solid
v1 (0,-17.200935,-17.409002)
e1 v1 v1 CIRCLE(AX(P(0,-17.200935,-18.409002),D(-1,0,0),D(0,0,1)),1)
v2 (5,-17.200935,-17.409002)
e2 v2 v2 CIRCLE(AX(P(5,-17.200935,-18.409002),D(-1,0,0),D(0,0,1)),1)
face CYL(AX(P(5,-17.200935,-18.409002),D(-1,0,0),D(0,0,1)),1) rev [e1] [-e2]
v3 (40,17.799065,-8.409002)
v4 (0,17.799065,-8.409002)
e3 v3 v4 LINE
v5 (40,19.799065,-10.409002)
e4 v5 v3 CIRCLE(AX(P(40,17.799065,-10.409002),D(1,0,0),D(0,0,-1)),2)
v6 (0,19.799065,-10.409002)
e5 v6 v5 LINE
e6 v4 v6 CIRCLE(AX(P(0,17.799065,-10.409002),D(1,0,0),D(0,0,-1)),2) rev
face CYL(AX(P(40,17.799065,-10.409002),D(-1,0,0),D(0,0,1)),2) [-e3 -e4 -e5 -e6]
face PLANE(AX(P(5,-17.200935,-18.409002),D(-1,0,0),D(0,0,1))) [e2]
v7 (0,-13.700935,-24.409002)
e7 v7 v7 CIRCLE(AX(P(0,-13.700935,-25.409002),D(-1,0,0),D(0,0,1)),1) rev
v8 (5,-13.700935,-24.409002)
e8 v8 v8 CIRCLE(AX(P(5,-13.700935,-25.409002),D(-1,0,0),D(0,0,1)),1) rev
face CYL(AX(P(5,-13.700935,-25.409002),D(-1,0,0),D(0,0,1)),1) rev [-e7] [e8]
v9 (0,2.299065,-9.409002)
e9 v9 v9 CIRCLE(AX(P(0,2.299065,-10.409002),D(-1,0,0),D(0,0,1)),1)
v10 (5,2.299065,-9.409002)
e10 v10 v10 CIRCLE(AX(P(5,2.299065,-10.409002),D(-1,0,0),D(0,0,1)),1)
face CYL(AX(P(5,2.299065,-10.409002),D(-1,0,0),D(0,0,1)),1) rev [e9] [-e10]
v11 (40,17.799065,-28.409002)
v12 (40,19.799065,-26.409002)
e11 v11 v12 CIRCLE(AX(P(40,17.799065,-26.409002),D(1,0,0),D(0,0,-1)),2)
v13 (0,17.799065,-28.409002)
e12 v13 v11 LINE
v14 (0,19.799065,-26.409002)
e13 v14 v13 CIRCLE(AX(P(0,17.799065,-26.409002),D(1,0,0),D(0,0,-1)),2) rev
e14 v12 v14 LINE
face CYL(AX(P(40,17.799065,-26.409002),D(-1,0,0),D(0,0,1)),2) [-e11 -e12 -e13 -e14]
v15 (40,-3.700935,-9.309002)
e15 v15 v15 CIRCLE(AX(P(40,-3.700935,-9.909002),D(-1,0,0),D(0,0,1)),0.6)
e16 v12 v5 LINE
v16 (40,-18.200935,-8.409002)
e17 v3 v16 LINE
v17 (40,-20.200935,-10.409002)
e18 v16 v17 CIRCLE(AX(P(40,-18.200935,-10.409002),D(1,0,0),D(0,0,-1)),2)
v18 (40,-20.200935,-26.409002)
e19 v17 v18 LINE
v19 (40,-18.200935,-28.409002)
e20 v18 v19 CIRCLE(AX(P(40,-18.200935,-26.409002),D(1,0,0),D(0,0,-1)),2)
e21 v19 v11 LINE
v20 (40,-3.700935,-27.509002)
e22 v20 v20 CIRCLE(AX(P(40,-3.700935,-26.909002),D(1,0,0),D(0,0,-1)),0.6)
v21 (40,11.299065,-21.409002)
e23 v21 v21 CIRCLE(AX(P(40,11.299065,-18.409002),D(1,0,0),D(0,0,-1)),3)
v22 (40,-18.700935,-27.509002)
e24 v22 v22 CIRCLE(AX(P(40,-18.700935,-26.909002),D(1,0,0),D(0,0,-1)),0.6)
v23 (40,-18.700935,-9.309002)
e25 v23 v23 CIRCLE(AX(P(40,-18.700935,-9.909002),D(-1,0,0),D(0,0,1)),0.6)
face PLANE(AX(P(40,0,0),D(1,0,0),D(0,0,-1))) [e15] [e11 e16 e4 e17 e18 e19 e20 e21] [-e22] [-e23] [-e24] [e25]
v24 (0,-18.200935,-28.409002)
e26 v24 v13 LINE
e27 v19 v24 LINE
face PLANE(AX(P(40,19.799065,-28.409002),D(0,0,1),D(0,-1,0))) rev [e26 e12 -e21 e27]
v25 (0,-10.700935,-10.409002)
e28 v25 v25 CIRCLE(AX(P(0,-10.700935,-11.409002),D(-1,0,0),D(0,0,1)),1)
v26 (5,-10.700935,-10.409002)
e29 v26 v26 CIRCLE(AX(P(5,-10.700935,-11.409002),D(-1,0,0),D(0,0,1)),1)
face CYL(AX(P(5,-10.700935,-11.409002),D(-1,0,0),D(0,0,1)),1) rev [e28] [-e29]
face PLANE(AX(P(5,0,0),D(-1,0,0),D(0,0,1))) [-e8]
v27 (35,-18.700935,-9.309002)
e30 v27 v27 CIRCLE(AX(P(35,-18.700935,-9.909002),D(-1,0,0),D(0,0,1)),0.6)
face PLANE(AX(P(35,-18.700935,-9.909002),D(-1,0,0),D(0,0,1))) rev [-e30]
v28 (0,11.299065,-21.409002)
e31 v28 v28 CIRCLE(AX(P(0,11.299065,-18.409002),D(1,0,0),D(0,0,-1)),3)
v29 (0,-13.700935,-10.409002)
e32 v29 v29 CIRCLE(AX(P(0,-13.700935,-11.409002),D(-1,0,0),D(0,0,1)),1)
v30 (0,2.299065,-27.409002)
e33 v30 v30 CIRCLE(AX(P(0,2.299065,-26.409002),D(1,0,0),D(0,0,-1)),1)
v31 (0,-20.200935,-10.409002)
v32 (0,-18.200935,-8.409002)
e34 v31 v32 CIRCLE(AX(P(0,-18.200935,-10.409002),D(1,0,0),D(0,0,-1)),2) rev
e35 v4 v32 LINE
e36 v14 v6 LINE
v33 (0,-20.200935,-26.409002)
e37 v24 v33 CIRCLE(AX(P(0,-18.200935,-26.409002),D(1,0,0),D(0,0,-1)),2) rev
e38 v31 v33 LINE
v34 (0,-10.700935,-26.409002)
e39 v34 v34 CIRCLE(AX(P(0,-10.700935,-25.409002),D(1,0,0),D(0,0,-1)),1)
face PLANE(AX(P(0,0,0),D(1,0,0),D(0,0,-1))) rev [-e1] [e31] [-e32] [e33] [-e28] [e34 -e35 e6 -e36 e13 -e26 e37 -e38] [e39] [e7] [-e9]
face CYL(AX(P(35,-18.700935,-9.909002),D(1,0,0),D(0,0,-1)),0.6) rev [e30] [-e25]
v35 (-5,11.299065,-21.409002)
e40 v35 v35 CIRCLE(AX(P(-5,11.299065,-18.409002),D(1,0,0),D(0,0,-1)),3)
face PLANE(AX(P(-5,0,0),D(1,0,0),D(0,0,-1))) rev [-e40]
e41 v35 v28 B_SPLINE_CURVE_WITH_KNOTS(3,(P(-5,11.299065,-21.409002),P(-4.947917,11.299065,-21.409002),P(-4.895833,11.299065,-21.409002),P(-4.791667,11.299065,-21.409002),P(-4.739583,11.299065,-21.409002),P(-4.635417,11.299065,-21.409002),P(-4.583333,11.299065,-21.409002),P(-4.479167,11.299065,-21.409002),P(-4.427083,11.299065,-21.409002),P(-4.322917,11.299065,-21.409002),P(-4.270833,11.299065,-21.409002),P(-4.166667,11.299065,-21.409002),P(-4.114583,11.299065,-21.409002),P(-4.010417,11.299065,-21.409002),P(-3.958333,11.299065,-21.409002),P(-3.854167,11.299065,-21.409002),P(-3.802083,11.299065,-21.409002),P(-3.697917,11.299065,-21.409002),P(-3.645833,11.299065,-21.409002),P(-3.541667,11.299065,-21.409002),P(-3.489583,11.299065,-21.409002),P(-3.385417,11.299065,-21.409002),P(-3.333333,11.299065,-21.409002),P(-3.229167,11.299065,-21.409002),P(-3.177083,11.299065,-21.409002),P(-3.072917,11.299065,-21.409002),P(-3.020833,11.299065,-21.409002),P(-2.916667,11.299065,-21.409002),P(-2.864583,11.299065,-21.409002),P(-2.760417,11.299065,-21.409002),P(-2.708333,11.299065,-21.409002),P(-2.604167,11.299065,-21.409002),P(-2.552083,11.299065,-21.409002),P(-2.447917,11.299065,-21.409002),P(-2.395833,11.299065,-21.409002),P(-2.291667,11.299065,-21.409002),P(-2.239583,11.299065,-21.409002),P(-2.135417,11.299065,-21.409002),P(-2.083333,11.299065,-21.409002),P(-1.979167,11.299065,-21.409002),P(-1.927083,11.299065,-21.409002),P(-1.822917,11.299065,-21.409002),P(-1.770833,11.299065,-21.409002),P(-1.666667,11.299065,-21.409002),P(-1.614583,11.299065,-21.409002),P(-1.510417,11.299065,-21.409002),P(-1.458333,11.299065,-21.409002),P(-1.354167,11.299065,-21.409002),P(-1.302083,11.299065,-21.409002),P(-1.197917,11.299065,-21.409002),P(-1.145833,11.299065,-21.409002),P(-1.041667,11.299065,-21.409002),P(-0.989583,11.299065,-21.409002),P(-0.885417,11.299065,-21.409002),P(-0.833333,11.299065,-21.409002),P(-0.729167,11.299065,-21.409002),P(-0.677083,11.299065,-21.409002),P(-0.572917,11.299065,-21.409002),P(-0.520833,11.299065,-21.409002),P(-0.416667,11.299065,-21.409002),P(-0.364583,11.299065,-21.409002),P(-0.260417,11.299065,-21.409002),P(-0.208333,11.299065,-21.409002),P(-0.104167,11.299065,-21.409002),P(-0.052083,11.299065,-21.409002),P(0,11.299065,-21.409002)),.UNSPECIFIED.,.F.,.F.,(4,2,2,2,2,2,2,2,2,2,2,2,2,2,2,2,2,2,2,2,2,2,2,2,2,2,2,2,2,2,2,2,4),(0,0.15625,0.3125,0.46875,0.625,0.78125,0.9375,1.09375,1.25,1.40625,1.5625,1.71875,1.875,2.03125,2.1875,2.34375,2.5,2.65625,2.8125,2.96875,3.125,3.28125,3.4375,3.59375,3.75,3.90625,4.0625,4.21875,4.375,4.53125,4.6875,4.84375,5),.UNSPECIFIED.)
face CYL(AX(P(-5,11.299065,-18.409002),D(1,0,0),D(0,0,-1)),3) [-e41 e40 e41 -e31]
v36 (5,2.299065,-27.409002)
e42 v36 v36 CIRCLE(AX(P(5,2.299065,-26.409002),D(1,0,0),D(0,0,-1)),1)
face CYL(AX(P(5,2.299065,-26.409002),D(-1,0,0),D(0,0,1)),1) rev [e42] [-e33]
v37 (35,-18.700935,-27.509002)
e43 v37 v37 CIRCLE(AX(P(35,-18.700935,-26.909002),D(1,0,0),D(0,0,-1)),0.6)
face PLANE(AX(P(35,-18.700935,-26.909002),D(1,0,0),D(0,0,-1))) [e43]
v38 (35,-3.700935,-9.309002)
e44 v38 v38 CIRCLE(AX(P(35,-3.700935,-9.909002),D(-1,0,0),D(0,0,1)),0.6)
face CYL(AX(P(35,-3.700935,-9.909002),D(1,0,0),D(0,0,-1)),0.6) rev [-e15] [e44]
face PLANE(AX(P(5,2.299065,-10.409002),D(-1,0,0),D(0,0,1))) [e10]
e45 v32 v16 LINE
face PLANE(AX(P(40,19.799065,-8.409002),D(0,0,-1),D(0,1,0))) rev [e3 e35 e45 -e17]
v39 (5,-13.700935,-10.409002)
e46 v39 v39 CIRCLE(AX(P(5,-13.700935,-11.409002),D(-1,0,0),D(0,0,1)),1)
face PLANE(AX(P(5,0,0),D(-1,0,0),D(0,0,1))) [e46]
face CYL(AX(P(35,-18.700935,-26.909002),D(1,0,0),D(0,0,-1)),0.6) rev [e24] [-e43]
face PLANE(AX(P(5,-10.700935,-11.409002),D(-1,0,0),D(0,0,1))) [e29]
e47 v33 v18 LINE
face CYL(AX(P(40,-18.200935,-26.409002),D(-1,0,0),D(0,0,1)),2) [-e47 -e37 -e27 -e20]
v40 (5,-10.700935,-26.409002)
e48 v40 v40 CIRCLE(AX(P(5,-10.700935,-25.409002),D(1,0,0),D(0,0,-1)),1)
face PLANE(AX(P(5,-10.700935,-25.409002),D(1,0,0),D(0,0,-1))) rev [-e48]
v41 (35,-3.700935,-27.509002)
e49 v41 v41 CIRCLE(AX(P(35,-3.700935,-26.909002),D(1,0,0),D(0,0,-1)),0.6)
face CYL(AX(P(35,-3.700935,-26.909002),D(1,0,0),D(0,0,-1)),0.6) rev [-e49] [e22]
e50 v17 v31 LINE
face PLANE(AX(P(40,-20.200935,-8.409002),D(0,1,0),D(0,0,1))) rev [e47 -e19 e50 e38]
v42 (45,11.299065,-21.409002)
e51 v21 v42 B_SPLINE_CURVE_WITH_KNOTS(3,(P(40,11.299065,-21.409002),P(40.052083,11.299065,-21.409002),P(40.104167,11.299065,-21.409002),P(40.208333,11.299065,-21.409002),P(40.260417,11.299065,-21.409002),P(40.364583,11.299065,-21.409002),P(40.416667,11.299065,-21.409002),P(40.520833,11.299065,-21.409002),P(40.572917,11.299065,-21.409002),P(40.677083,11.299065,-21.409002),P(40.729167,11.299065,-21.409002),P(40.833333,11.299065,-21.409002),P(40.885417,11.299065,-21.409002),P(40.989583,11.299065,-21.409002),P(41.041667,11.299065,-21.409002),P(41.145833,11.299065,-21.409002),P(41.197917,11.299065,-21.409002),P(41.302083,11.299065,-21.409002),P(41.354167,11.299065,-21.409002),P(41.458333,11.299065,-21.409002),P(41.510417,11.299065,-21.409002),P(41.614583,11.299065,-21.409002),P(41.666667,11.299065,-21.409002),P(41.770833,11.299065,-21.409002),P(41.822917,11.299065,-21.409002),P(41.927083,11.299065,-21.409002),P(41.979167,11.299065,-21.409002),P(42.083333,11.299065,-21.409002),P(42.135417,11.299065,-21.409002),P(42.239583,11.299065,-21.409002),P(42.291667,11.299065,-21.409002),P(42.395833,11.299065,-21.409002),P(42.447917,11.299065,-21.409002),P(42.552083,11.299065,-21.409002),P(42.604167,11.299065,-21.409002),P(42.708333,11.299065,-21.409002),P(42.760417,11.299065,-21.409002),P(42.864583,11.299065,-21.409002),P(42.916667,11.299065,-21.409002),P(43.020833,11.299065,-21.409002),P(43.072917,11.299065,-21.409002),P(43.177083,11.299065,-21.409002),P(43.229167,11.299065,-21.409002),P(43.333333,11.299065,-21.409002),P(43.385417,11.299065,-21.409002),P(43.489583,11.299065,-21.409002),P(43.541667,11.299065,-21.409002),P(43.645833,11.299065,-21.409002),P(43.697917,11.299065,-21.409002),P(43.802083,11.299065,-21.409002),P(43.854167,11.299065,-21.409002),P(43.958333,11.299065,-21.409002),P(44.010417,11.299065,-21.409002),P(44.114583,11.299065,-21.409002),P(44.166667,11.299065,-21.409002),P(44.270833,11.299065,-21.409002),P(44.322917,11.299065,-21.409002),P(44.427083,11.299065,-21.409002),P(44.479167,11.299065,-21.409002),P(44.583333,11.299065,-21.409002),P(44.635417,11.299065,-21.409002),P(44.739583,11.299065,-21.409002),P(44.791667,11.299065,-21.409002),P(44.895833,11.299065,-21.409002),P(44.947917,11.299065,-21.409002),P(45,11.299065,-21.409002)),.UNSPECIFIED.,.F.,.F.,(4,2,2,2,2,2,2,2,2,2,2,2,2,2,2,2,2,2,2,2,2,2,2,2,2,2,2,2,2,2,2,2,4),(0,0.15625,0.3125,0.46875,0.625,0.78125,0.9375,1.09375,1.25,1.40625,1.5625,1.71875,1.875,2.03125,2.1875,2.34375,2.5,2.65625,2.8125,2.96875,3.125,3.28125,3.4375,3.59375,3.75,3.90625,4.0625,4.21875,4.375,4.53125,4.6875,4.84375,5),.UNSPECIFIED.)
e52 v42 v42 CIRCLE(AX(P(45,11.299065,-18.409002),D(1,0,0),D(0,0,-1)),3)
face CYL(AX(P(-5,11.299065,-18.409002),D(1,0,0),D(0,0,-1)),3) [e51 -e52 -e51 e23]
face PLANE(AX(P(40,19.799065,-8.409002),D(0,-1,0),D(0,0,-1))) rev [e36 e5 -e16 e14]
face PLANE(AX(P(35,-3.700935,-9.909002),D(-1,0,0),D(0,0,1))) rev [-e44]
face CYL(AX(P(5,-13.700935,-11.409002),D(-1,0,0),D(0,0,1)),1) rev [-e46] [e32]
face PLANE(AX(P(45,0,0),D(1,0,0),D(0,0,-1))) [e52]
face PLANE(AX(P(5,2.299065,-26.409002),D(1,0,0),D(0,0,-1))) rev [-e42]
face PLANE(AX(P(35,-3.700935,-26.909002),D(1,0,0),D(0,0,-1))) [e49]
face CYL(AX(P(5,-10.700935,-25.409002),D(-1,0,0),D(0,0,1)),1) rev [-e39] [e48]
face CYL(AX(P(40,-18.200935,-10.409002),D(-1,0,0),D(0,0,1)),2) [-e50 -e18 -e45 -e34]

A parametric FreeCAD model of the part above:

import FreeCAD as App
import Part
import Sketcher

V = App.Vector
Q = App.Units.Quantity


def edges_at(feature, points):
    """Names of the edges that pass closest to the given points."""
    edges = feature.Shape.Edges
    near = lambda p: min(range(len(edges)), key=lambda i: edges[i].distToShape(Part.Vertex(*p))[0])
    return sorted({f"Edge{near(p) + 1}" for p in points})

doc = App.newDocument("Part")
body = doc.addObject("PartDesign::Body", "Body")

sketch1 = body.newObject("Sketcher::SketchObject", "Sketch")
sketch1.AttachmentSupport = (doc.getObject("YZ_Plane"), [""])
sketch1.MapMode = "FlatFace"
sketch1.addGeometry([
    Part.LineSegment(V(20, -8, 0), V(-20, -8, 0)),
    Part.LineSegment(V(-20, -8, 0), V(-20, -28, 0)),
    Part.LineSegment(V(-20, -28, 0), V(20, -28, 0)),
    Part.LineSegment(V(20, -28, 0), V(20, -8, 0)),
], False)
sketch1.addConstraint([
    Sketcher.Constraint("Coincident", 0, 2, 1, 1),
    Sketcher.Constraint("Coincident", 1, 2, 2, 1),
    Sketcher.Constraint("Coincident", 2, 2, 3, 1),
    Sketcher.Constraint("Coincident", 3, 2, 0, 1),
    Sketcher.Constraint("Horizontal", 0),
    Sketcher.Constraint("Vertical", 1),
    Sketcher.Constraint("Horizontal", 2),
    Sketcher.Constraint("Vertical", 3),
    Sketcher.Constraint("DistanceX", 0, 2, 0, 1, Q("40 mm")),
    Sketcher.Constraint("DistanceY", 1, 2, 1, 1, Q("20 mm")),
    Sketcher.Constraint("DistanceY", 0, 2, -1, 1, Q("8.409002 mm")),
    Sketcher.Constraint("DistanceX", 0, 2, -1, 1, Q("20.200935 mm")),
])
pad1 = body.newObject("PartDesign::Pad", "Pad")
pad1.Profile = sketch1
pad1.Length = 40

sketch2 = body.newObject("Sketcher::SketchObject", "Sketch001")
sketch2.AttachmentSupport = (doc.getObject("YZ_Plane"), [""])
sketch2.MapMode = "FlatFace"
sketch2.AttachmentOffset = App.Placement(V(0, 0, 40), App.Rotation())
sketch2.addGeometry([
    Part.Circle(V(-18.7, -26.9, 0), V(0, 0, 1), 0.6),
    Part.Circle(V(-3.7, -26.9, 0), V(0, 0, 1), 0.6),
    Part.Circle(V(-3.7, -9.9, 0), V(0, 0, 1), 0.6),
    Part.Circle(V(-18.7, -9.9, 0), V(0, 0, 1), 0.6),
], False)
sketch2.addConstraint([
    Sketcher.Constraint("Equal", 0, 1),
    Sketcher.Constraint("Equal", 1, 2),
    Sketcher.Constraint("Equal", 2, 3),
    Sketcher.Constraint("Horizontal", 0, 3, 1, 3),
    Sketcher.Constraint("Horizontal", 2, 3, 3, 3),
    Sketcher.Constraint("Vertical", 1, 3, 2, 3),
    Sketcher.Constraint("Vertical", 0, 3, 3, 3),
    Sketcher.Constraint("Diameter", 0, Q("1.2 mm")),
    Sketcher.Constraint("DistanceX", 0, 3, 1, 3, Q("15 mm")),
    Sketcher.Constraint("DistanceY", 1, 3, 2, 3, Q("17 mm")),
    Sketcher.Constraint("DistanceY", 0, 3, -1, 1, Q("26.909002 mm")),
    Sketcher.Constraint("DistanceX", 0, 3, -1, 1, Q("18.700935 mm")),
])
pocket1 = body.newObject("PartDesign::Pocket", "Pocket")
pocket1.Profile = sketch2
pocket1.Length = 5

sketch3 = body.newObject("Sketcher::SketchObject", "Sketch002")
sketch3.AttachmentSupport = (doc.getObject("YZ_Plane"), [""])
sketch3.MapMode = "FlatFace"
sketch3.AttachmentOffset = App.Placement(V(0, 0, 40), App.Rotation())
sketch3.addGeometry(Part.Circle(V(11.3, -18.4, 0), V(0, 0, 1), 3), False)
sketch3.addConstraint([
    Sketcher.Constraint("Diameter", 0, Q("6 mm")),
    Sketcher.Constraint("DistanceY", 0, 3, -1, 1, Q("18.409002 mm")),
    Sketcher.Constraint("DistanceX", -1, 1, 0, 3, Q("11.299065 mm")),
])
pad2 = body.newObject("PartDesign::Pad", "Pad001")
pad2.Profile = sketch3
pad2.Type = "TwoLengths"
pad2.Length = 5
pad2.Length2 = 45

sketch4 = body.newObject("Sketcher::SketchObject", "Sketch003")
sketch4.AttachmentSupport = (doc.getObject("YZ_Plane"), [""])
sketch4.MapMode = "FlatFace"
sketch4.addGeometry([
    Part.Circle(V(-13.7, -11.4, 0), V(0, 0, 1), 1),
    Part.Circle(V(-13.7, -25.4, 0), V(0, 0, 1), 1),
    Part.Circle(V(2.3, -26.4, 0), V(0, 0, 1), 1),
    Part.Circle(V(2.3, -10.4, 0), V(0, 0, 1), 1),
    Part.Circle(V(-10.7, -11.4, 0), V(0, 0, 1), 1),
    Part.Circle(V(-10.7, -25.4, 0), V(0, 0, 1), 1),
    Part.Circle(V(-17.2, -18.4, 0), V(0, 0, 1), 1),
], False)
sketch4.addConstraint([
    Sketcher.Constraint("Equal", 0, 1),
    Sketcher.Constraint("Equal", 1, 2),
    Sketcher.Constraint("Equal", 2, 3),
    Sketcher.Constraint("Equal", 3, 4),
    Sketcher.Constraint("Equal", 4, 5),
    Sketcher.Constraint("Equal", 5, 6),
    Sketcher.Constraint("Horizontal", 0, 3, 4, 3),
    Sketcher.Constraint("Horizontal", 1, 3, 5, 3),
    Sketcher.Constraint("Vertical", 0, 3, 1, 3),
    Sketcher.Constraint("Vertical", 2, 3, 3, 3),
    Sketcher.Constraint("Vertical", 4, 3, 5, 3),
    Sketcher.Constraint("Diameter", 0, Q("2 mm")),
    Sketcher.Constraint("DistanceY", 1, 3, 0, 3, Q("14 mm")),
    Sketcher.Constraint("DistanceX", 1, 3, 2, 3, Q("16 mm")),
    Sketcher.Constraint("DistanceY", 2, 3, 1, 3, Q("1 mm")),
    Sketcher.Constraint("DistanceY", 2, 3, 3, 3, Q("16 mm")),
    Sketcher.Constraint("DistanceX", 0, 3, 4, 3, Q("3 mm")),
    Sketcher.Constraint("DistanceY", 6, 3, 0, 3, Q("7 mm")),
    Sketcher.Constraint("DistanceX", 6, 3, 0, 3, Q("3.5 mm")),
    Sketcher.Constraint("DistanceY", 0, 3, -1, 1, Q("11.409002 mm")),
    Sketcher.Constraint("DistanceX", 0, 3, -1, 1, Q("13.700935 mm")),
])
pocket2 = body.newObject("PartDesign::Pocket", "Pocket001")
pocket2.Profile = sketch4
pocket2.Length = 5
pocket2.Reversed = True
doc.recompute()

fillet = body.newObject("PartDesign::Fillet", "Fillet")
fillet.Base = (pocket2, edges_at(pocket2, [
    (20, 19.799, -8.409),
    (20, 19.799, -28.409),
    (20, -20.201, -28.409),
    (20, -20.201, -8.409),
]))
fillet.Radius = 2

doc.recompute()
